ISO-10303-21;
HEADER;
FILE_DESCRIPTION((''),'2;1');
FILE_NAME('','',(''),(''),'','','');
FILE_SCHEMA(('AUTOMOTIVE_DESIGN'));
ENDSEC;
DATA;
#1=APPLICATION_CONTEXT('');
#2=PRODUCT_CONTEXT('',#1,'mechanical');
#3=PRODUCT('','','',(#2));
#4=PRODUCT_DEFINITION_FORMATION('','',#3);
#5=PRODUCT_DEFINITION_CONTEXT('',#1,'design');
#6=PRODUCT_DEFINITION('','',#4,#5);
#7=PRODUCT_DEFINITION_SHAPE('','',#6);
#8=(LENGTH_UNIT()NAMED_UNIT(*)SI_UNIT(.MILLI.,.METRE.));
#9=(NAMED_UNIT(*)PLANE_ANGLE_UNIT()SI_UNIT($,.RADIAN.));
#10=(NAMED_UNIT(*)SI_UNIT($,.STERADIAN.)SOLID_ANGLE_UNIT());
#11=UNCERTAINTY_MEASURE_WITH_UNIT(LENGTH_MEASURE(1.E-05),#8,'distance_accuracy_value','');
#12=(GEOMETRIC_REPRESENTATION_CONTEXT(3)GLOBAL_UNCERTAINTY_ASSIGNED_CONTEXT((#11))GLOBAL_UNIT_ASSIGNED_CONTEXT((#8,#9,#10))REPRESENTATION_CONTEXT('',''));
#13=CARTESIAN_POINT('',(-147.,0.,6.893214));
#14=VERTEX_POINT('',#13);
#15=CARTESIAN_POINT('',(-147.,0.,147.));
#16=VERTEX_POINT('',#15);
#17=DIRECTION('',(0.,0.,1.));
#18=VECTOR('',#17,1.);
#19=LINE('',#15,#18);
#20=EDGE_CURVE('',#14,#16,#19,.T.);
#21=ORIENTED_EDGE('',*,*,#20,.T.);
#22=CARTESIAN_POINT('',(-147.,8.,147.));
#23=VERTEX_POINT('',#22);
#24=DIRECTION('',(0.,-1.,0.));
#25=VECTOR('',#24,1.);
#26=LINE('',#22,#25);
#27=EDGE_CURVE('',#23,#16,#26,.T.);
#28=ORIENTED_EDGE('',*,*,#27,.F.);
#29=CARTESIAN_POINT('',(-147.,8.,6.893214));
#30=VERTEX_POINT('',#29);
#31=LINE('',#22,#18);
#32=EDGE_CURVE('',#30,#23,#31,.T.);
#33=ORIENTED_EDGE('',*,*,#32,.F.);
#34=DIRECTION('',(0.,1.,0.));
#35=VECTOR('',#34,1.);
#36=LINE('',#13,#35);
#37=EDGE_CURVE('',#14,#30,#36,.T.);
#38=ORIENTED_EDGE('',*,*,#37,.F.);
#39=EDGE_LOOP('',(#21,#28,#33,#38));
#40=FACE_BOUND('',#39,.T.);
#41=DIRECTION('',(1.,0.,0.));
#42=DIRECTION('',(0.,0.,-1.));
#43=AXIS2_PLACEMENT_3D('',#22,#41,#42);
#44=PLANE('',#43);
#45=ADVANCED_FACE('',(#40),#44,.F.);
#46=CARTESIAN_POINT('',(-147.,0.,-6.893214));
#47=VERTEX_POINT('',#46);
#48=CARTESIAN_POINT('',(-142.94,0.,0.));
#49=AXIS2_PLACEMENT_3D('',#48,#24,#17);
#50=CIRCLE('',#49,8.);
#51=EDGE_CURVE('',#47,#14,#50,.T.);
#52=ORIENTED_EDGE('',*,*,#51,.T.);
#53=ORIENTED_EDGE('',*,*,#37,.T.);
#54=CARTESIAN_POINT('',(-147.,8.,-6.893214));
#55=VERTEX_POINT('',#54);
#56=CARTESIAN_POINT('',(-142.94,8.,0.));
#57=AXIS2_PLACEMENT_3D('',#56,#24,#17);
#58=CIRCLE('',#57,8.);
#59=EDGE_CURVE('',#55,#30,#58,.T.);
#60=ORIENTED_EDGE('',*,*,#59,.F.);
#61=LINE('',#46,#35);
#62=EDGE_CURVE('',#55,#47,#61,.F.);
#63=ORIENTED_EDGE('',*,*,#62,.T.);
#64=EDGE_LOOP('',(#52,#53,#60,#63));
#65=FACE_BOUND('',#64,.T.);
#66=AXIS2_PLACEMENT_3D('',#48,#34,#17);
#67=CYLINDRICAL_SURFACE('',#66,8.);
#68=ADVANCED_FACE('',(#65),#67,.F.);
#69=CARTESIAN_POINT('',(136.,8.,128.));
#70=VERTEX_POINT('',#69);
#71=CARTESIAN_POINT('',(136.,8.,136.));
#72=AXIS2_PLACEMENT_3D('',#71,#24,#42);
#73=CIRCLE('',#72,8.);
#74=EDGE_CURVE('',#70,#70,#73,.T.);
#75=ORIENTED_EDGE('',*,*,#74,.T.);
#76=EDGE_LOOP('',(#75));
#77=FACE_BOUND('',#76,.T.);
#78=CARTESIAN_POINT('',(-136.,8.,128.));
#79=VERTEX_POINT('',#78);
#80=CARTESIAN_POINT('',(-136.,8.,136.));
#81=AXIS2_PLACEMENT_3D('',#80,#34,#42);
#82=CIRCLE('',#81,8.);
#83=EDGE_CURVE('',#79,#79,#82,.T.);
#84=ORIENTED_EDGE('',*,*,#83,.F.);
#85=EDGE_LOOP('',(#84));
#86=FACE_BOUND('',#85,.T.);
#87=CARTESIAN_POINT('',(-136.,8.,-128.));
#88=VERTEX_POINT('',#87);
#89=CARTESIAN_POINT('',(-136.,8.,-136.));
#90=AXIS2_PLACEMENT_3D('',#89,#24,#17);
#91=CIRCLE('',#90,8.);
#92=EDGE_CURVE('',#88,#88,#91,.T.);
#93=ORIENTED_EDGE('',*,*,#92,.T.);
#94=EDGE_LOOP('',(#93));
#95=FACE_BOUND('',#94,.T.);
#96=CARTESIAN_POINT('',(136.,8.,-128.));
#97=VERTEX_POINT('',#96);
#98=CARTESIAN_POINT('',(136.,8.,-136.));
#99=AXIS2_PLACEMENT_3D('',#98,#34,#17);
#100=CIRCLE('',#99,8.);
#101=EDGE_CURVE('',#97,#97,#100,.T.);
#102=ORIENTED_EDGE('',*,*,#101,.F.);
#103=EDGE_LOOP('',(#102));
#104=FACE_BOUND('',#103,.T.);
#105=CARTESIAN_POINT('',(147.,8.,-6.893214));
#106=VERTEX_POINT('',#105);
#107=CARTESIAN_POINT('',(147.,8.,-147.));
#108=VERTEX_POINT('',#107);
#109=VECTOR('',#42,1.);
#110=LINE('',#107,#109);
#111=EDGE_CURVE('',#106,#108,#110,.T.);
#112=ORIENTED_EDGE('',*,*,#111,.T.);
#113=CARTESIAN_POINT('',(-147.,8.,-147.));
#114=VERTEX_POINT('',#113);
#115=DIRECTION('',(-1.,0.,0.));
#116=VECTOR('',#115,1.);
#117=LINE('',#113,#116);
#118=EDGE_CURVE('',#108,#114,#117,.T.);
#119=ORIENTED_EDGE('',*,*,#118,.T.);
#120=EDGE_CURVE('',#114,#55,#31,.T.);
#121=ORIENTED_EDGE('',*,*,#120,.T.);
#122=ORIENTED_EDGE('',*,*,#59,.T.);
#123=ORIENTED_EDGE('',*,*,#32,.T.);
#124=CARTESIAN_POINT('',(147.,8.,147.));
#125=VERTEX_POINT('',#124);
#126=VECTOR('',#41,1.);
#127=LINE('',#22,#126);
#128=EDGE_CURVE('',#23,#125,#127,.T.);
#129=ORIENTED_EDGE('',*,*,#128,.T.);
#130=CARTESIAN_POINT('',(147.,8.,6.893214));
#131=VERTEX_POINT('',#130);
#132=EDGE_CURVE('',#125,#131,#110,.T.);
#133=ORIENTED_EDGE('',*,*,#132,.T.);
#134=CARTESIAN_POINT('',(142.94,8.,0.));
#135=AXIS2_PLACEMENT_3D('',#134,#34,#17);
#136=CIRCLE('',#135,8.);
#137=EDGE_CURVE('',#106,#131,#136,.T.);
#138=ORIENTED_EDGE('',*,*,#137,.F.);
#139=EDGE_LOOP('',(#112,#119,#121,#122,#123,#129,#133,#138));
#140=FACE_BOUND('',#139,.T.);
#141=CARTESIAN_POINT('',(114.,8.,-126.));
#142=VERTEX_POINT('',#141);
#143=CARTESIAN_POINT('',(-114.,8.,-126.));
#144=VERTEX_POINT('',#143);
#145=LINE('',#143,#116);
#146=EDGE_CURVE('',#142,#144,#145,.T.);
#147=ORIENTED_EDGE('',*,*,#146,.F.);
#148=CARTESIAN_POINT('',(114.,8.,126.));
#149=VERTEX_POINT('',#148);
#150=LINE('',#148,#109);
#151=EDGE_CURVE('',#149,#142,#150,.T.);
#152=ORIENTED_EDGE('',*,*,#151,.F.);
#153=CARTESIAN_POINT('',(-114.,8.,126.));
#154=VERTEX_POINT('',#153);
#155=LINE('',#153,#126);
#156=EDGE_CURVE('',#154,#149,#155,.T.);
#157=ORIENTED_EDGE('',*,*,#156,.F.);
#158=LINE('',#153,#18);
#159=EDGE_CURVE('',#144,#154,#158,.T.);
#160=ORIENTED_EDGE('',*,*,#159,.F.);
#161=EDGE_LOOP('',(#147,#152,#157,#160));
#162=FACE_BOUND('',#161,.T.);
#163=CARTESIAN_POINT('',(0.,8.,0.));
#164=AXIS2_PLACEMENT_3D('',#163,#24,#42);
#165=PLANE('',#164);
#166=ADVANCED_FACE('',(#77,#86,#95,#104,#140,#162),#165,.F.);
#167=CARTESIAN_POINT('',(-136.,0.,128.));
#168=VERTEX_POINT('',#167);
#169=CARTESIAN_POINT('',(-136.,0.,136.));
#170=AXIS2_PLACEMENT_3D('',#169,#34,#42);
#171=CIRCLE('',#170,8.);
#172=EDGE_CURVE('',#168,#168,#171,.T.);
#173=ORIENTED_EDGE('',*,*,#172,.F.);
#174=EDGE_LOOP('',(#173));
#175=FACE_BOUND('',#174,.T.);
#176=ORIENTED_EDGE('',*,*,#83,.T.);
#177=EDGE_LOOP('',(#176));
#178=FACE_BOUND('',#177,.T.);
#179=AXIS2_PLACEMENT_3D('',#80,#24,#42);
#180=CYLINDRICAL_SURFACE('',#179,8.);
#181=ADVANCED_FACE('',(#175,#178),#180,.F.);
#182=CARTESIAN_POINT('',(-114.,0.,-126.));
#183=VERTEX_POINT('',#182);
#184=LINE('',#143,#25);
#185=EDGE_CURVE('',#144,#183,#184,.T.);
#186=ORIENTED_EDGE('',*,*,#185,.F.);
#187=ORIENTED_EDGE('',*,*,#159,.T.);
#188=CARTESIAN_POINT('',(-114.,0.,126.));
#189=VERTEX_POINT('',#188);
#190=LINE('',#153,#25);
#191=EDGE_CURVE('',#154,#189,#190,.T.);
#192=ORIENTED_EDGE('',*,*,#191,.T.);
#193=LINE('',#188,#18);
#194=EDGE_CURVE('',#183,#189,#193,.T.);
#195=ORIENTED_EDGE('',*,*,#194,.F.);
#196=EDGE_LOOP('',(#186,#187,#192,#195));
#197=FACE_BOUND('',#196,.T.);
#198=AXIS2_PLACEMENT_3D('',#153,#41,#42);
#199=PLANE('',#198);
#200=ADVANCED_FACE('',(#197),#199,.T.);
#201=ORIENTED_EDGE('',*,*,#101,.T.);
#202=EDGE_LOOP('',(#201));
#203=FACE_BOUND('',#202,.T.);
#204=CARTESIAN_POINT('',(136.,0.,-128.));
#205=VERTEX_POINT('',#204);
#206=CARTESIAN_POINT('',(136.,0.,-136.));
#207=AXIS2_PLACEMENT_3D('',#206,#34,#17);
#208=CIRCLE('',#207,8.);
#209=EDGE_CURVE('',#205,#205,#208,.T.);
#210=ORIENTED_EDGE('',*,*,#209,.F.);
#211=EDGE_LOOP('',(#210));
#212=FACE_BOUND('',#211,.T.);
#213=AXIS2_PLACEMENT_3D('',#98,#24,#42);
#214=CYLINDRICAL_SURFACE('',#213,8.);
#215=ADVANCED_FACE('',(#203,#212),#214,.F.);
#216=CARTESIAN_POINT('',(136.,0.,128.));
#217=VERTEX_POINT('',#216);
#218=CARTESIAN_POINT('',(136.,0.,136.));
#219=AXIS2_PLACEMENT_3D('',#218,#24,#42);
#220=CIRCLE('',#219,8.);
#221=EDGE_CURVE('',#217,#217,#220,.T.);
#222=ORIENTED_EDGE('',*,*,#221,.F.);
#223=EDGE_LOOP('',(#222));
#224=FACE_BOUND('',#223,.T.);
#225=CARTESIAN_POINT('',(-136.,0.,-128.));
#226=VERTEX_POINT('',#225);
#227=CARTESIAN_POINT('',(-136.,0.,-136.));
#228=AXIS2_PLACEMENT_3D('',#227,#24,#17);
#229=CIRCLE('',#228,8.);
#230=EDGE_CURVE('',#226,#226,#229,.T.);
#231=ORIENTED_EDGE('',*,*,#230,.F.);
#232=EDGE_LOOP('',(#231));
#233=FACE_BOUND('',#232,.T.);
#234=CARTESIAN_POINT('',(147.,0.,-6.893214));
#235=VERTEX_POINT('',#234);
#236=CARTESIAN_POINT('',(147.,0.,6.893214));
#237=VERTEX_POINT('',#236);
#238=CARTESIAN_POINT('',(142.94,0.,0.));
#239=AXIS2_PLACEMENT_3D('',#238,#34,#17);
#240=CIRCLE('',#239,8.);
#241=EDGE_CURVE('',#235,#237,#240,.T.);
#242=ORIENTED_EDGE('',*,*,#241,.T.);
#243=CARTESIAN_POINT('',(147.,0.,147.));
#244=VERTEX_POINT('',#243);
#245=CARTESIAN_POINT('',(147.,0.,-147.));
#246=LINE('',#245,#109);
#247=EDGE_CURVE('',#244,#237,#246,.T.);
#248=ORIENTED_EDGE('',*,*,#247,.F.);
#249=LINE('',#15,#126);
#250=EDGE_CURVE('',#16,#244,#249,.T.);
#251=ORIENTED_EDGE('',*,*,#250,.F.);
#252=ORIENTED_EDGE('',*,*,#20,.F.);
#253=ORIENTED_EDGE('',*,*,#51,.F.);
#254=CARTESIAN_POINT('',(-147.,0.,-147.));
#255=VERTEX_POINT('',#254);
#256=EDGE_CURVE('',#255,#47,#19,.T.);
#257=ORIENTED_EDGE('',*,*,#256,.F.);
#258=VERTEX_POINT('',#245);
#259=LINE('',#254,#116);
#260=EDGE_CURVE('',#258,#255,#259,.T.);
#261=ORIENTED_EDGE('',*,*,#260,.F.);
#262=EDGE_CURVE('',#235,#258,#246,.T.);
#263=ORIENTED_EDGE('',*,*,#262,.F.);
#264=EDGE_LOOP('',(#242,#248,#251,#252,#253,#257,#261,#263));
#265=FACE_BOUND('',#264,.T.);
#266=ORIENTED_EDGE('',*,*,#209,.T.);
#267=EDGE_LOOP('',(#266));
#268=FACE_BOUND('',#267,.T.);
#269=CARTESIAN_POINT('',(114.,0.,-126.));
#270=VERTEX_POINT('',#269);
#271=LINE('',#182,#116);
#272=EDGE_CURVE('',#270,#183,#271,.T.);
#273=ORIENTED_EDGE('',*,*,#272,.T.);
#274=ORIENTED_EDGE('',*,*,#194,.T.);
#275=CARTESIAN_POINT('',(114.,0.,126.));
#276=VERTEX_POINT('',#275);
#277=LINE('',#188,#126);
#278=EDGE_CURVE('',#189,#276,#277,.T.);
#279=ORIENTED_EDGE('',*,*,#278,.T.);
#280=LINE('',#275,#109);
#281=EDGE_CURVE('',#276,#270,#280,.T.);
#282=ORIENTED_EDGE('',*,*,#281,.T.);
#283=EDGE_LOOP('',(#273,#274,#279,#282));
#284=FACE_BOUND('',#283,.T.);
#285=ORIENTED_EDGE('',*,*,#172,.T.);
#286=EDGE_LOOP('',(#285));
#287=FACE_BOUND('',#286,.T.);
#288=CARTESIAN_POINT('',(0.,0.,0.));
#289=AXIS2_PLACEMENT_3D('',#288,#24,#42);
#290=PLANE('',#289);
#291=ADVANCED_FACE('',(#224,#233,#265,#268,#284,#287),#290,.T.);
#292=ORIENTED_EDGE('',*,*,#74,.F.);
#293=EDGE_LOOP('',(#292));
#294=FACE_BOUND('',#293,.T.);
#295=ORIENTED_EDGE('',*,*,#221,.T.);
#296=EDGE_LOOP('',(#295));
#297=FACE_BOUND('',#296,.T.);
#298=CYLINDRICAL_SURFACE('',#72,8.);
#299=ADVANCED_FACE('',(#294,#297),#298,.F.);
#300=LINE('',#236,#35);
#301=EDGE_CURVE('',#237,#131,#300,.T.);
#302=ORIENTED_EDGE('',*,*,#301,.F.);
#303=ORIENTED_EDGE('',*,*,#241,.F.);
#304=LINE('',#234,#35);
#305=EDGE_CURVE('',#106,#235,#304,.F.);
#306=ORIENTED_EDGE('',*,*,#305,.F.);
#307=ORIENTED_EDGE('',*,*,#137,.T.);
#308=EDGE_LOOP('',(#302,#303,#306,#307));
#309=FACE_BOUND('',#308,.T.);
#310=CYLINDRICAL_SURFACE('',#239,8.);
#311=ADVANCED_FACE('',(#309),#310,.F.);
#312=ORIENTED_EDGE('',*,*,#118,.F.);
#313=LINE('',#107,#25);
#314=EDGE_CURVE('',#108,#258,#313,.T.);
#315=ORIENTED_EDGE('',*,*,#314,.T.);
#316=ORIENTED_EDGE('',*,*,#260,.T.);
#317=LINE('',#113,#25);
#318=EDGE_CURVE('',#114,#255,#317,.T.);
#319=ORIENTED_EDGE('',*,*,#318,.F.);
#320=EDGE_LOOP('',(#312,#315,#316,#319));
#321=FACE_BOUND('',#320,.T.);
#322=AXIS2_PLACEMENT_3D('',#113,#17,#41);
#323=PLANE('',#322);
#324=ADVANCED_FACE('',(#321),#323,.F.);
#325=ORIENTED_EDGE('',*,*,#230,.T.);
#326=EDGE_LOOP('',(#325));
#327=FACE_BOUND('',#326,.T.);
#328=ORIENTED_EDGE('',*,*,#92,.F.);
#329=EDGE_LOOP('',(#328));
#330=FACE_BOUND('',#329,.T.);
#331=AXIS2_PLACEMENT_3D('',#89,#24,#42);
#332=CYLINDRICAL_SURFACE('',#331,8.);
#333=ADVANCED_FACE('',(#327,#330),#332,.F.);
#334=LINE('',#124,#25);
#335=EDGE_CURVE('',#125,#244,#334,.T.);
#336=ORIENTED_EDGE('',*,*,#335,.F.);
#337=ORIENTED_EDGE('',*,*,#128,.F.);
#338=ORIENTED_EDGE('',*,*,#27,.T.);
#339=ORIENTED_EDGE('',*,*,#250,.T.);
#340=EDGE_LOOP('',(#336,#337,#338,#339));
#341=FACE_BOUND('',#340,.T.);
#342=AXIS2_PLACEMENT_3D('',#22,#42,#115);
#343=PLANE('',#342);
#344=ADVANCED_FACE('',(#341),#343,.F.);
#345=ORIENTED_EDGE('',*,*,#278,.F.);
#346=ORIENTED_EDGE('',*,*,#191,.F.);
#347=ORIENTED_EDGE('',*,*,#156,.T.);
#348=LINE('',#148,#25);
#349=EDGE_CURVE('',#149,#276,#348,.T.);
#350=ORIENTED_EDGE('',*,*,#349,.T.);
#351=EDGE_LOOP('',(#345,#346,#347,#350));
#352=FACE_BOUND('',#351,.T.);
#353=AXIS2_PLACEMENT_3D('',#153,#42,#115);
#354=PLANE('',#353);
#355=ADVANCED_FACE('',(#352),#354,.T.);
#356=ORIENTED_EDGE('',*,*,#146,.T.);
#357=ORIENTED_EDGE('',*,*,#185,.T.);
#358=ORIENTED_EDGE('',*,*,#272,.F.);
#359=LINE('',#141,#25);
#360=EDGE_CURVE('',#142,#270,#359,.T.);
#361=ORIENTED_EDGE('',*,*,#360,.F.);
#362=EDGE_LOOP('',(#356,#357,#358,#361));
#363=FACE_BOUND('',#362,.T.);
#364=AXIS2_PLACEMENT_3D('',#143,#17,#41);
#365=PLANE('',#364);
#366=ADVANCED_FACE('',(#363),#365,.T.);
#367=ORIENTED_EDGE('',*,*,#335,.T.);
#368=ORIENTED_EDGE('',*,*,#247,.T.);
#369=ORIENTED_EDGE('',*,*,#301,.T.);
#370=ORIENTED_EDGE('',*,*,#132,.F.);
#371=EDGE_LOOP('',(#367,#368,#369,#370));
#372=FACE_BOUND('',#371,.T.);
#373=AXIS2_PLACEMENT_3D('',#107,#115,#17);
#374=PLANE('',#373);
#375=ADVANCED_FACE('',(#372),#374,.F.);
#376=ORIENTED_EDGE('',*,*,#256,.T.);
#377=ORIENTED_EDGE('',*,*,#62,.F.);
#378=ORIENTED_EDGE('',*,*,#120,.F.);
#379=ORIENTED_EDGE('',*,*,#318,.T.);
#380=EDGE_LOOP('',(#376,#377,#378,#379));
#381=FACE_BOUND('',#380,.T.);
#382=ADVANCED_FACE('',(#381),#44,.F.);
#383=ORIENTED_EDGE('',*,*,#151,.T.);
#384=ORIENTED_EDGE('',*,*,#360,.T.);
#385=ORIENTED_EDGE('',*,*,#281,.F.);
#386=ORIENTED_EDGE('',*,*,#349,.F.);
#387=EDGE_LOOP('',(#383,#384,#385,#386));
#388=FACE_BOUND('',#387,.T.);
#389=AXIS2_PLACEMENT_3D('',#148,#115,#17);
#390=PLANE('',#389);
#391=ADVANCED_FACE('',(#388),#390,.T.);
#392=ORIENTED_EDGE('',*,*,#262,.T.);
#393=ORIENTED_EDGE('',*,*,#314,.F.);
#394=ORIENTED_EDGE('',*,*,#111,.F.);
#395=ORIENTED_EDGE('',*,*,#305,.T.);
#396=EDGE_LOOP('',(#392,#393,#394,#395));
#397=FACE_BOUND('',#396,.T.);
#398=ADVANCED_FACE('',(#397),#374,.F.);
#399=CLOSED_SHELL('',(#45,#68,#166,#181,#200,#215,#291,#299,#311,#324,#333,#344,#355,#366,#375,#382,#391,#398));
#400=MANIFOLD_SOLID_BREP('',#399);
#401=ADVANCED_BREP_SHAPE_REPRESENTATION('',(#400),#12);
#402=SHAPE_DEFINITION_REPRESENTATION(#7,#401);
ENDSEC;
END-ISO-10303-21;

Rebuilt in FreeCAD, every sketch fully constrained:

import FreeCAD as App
import Part
import Sketcher
Q = App.Units.Quantity


def add_polygon(sketch, points):
    """Adds a closed chain of lines whose ends are joined by coincident constraints."""
    first, n = sketch.GeometryCount, len(points)
    for a, b in zip(points, points[1:] + points[:1]):
        sketch.addGeometry(Part.LineSegment(App.Vector(*a, 0), App.Vector(*b, 0)), False)
    for i in range(n):
        sketch.addConstraint(Sketcher.Constraint("Coincident", first + i, 2, first + (i + 1) % n, 1))

doc = App.newDocument("Part")
body = doc.addObject("PartDesign::Body", "Body")

# Sketch on XZ plane
sketch1 = body.newObject("Sketcher::SketchObject", "Sketch")
sketch1.AttachmentSupport = (doc.getObject("XZ_Plane"), [""])
sketch1.MapMode = "FlatFace"
add_polygon(sketch1, [(-147, -147), (-147, 147), (147, 147), (147, -147)])  # lines 0-3
add_polygon(sketch1, [(114, 126), (-114, 126), (-114, -126), (114, -126)])  # lines 4-7
sketch1.addConstraint([
    Sketcher.Constraint("Vertical", 0),
    Sketcher.Constraint("Horizontal", 1),
    Sketcher.Constraint("Vertical", 2),
    Sketcher.Constraint("Horizontal", 3),
    Sketcher.Constraint("Horizontal", 4),
    Sketcher.Constraint("Vertical", 5),
    Sketcher.Constraint("Horizontal", 6),
    Sketcher.Constraint("Vertical", 7),
    Sketcher.Constraint("Symmetric", 0, 2, 2, 2, -1, 1),
    Sketcher.Constraint("Symmetric", 4, 2, 6, 2, -1, 1),
    Sketcher.Constraint("Equal", 3, 0),
    Sketcher.Constraint("DistanceX", 1, 1, 1, 2, Q("294 mm")),
    Sketcher.Constraint("DistanceX", 4, 2, 4, 1, Q("228 mm")),
    Sketcher.Constraint("DistanceY", 5, 2, 5, 1, Q("252 mm")),
])
pad1 = body.newObject("PartDesign::Pad", "Pad")
pad1.Profile = sketch1
pad1.Length = 8
pad1.Reversed = True

# Sketch on XZ plane
sketch2 = body.newObject("Sketcher::SketchObject", "Sketch001")
sketch2.AttachmentSupport = (doc.getObject("XZ_Plane"), [""])
sketch2.MapMode = "FlatFace"
sketch2.addGeometry(Part.Circle(App.Vector(136, -136, 0), App.Vector(0, 0, 1), 8), False)
sketch2.addConstraint([
    Sketcher.Constraint("Diameter", 0, Q("16 mm")),
    Sketcher.Constraint("DistanceX", -1, 1, 0, 3, Q("136 mm")),
    Sketcher.Constraint("DistanceY", 0, 3, -1, 1, Q("136 mm")),
])
pocket1 = body.newObject("PartDesign::Pocket", "Pocket")
pocket1.Profile = sketch2
pocket1.Type = "ThroughAll"
doc.recompute()

mirrored = body.newObject("PartDesign::Mirrored", "Mirrored")
mirrored.Originals = [pocket1]
mirrored.MirrorPlane = (doc.getObject("XY_Plane"), [""])
body.Tip = mirrored

# Sketch on XZ plane
sketch3 = body.newObject("Sketcher::SketchObject", "Sketch002")
sketch3.AttachmentSupport = (doc.getObject("XZ_Plane"), [""])
sketch3.MapMode = "FlatFace"
sketch3.AttachmentOffset = App.Placement(App.Vector(0, 0, -8), App.Rotation())
sketch3.addGeometry(Part.Circle(App.Vector(143, 0, 0), App.Vector(0, 0, 1), 8), False)
sketch3.addConstraint([
    Sketcher.Constraint("PointOnObject", 0, 3, -1),
    Sketcher.Constraint("Diameter", 0, Q("16 mm")),
    Sketcher.Constraint("DistanceX", -1, 1, 0, 3, Q("142.94 mm")),
])
pocket2 = body.newObject("PartDesign::Pocket", "Pocket001")
pocket2.Profile = sketch3
pocket2.Type = "ThroughAll"
pocket2.Reversed = True
doc.recompute()

mirrored2 = body.newObject("PartDesign::Mirrored", "Mirrored001")
mirrored2.Originals = [pocket1, pocket2]
mirrored2.MirrorPlane = (doc.getObject("YZ_Plane"), [""])
body.Tip = mirrored2

# Sketch on XZ plane
sketch4 = body.newObject("Sketcher::SketchObject", "Sketch003")
sketch4.AttachmentSupport = (doc.getObject("XZ_Plane"), [""])
sketch4.MapMode = "FlatFace"
sketch4.addGeometry(Part.Circle(App.Vector(-136, 136, 0), App.Vector(0, 0, 1), 8), False)
sketch4.addConstraint([
    Sketcher.Constraint("Diameter", 0, Q("16 mm")),
    Sketcher.Constraint("DistanceX", 0, 3, -1, 1, Q("136 mm")),
    Sketcher.Constraint("DistanceY", -1, 1, 0, 3, Q("136 mm")),
])
pocket3 = body.newObject("PartDesign::Pocket", "Pocket002")
pocket3.Profile = sketch4
pocket3.Type = "ThroughAll"

doc.recompute()
